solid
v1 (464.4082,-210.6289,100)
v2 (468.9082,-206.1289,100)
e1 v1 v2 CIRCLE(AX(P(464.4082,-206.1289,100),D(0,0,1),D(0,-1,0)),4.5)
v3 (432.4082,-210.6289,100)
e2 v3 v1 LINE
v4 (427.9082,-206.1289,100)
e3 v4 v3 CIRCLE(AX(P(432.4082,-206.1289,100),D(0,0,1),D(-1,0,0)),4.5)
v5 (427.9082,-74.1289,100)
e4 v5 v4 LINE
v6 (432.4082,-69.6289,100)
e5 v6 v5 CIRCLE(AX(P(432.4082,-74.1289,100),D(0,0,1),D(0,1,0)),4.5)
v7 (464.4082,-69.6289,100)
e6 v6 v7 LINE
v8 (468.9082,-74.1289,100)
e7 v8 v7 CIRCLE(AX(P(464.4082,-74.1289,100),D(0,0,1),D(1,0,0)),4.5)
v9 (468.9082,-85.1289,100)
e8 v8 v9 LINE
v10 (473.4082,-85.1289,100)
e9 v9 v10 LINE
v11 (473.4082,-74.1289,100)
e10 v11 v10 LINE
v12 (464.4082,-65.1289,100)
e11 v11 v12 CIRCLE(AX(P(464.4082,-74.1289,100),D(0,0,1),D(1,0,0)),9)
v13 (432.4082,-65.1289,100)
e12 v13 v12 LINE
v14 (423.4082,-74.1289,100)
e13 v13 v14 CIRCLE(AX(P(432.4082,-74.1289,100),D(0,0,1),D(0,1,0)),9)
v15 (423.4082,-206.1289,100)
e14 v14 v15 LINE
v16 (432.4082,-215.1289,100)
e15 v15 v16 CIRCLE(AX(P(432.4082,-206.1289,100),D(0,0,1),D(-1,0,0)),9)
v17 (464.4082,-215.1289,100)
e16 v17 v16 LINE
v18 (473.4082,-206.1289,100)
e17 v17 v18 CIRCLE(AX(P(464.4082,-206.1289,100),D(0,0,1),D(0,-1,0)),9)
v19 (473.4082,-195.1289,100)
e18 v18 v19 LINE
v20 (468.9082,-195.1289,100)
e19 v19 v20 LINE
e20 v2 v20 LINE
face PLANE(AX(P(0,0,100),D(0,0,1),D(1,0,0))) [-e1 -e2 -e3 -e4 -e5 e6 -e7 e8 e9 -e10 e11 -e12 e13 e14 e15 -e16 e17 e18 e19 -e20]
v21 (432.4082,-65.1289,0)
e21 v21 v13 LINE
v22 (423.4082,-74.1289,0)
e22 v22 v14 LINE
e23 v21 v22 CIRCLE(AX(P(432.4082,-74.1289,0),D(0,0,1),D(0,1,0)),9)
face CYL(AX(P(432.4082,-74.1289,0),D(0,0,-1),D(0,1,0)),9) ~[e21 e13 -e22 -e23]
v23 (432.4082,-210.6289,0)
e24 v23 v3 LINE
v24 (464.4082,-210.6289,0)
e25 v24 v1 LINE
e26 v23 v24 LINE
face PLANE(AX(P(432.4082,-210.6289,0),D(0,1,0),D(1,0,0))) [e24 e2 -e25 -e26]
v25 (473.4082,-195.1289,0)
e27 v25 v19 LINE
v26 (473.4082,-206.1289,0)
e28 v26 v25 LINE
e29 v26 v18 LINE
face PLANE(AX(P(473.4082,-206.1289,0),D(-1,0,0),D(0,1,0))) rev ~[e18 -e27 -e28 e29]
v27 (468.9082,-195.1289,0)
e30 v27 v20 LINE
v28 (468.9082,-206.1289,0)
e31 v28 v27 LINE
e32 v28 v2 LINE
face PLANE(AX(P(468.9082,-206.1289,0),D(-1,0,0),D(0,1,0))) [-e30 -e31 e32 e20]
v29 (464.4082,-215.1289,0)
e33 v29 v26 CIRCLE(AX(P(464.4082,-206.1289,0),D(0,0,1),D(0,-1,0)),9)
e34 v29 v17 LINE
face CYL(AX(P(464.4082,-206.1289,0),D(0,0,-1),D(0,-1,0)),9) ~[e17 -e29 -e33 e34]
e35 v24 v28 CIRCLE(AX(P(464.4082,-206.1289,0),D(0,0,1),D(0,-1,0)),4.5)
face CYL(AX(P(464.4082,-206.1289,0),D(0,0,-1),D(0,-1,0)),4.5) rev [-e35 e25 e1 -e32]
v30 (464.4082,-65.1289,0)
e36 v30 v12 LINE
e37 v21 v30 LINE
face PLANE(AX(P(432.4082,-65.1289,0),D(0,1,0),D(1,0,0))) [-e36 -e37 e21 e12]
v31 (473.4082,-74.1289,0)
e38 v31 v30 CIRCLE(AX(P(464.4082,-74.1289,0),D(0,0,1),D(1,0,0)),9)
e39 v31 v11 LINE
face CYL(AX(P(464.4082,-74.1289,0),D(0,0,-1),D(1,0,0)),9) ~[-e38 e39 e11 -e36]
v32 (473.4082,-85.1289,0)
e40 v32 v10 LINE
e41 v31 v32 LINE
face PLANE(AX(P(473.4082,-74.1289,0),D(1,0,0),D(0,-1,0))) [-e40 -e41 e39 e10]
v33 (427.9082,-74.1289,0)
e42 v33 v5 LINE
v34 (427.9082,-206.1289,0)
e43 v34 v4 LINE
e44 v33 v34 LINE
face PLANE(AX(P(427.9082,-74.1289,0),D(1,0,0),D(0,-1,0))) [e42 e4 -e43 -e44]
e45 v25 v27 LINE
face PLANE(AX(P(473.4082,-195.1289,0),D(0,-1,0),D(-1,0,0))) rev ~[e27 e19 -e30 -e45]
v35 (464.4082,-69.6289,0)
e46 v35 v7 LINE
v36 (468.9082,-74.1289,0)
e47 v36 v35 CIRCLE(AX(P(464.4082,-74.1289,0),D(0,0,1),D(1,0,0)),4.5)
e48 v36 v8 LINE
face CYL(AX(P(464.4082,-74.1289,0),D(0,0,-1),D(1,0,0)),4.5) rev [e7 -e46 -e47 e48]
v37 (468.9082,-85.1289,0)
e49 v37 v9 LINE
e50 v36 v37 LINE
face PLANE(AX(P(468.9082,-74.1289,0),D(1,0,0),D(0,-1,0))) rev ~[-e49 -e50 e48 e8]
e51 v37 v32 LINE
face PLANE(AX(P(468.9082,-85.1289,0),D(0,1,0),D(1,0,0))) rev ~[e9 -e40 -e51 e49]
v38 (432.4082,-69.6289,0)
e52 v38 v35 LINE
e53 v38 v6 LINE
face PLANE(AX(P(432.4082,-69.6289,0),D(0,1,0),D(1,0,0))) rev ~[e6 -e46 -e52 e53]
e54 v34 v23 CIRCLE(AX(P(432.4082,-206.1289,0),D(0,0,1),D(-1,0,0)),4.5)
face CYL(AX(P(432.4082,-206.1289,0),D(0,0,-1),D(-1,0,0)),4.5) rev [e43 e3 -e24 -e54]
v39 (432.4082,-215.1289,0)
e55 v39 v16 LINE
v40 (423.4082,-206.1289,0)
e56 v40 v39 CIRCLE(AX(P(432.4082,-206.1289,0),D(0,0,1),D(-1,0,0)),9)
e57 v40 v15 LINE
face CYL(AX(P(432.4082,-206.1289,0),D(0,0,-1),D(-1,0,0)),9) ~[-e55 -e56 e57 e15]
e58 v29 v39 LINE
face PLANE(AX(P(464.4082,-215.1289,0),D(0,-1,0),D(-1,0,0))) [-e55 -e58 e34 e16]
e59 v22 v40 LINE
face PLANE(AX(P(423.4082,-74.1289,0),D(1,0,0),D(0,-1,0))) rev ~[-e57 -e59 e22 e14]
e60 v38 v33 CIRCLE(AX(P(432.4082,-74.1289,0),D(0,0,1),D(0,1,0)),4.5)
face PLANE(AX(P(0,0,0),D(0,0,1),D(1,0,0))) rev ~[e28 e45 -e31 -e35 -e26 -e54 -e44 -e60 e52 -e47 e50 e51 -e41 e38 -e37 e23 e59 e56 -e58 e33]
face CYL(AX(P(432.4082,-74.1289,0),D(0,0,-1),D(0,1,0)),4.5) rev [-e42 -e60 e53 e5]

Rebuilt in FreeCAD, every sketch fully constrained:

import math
import FreeCAD as App
import Part
import Sketcher
from FreeCAD import Vector

doc = App.newDocument("Part")
body = doc.addObject("PartDesign::Body", "Body")

# Sketch on XY plane
sketch1 = body.newObject("Sketcher::SketchObject", "Sketch")
sketch1.AttachmentSupport = (doc.getObject("XY_Plane"), [""])
sketch1.MapMode = "FlatFace"
sketch1.addGeometry(Part.LineSegment(Vector(427.9, -206.1, 0), Vector(427.9, -74.1, 0)), False)
sketch1.addGeometry(Part.ArcOfCircle(Part.Circle(Vector(432.4, -74.1, 0), Vector(0, 0, 1), 4.5), math.radians(90), math.radians(180)), False)
sketch1.addGeometry(Part.LineSegment(Vector(432.4, -69.6, 0), Vector(464.4, -69.6, 0)), False)
sketch1.addGeometry(Part.ArcOfCircle(Part.Circle(Vector(464.4, -74.1, 0), Vector(0, 0, 1), 4.5), math.radians(0), math.radians(90)), False)
sketch1.addGeometry(Part.LineSegment(Vector(468.9, -74.1, 0), Vector(468.9, -85.1, 0)), False)
sketch1.addGeometry(Part.LineSegment(Vector(468.9, -85.1, 0), Vector(473.4, -85.1, 0)), False)
sketch1.addGeometry(Part.LineSegment(Vector(473.4, -85.1, 0), Vector(473.4, -74.1, 0)), False)
sketch1.addGeometry(Part.ArcOfCircle(Part.Circle(Vector(464.4, -74.1, 0), Vector(0, 0, 1), 9), math.radians(0), math.radians(90)), False)
sketch1.addGeometry(Part.LineSegment(Vector(464.4, -65.1, 0), Vector(432.4, -65.1, 0)), False)
sketch1.addGeometry(Part.ArcOfCircle(Part.Circle(Vector(432.4, -74.1, 0), Vector(0, 0, 1), 9), math.radians(90), math.radians(180)), False)
sketch1.addGeometry(Part.LineSegment(Vector(423.4, -74.1, 0), Vector(423.4, -206.1, 0)), False)
sketch1.addGeometry(Part.ArcOfCircle(Part.Circle(Vector(432.4, -206.1, 0), Vector(0, 0, 1), 9), math.radians(180), math.radians(270)), False)
sketch1.addGeometry(Part.LineSegment(Vector(432.4, -215.1, 0), Vector(464.4, -215.1, 0)), False)
sketch1.addGeometry(Part.ArcOfCircle(Part.Circle(Vector(464.4, -206.1, 0), Vector(0, 0, 1), 9), math.radians(-90), math.radians(0)), False)
sketch1.addGeometry(Part.LineSegment(Vector(473.4, -206.1, 0), Vector(473.4, -195.1, 0)), False)
sketch1.addGeometry(Part.LineSegment(Vector(473.4, -195.1, 0), Vector(468.9, -195.1, 0)), False)
sketch1.addGeometry(Part.LineSegment(Vector(468.9, -195.1, 0), Vector(468.9, -206.1, 0)), False)
sketch1.addGeometry(Part.ArcOfCircle(Part.Circle(Vector(464.4, -206.1, 0), Vector(0, 0, 1), 4.5), math.radians(-90), math.radians(0)), False)
sketch1.addGeometry(Part.LineSegment(Vector(464.4, -210.6, 0), Vector(432.4, -210.6, 0)), False)
sketch1.addGeometry(Part.ArcOfCircle(Part.Circle(Vector(432.4, -206.1, 0), Vector(0, 0, 1), 4.5), math.radians(180), math.radians(270)), False)
sketch1.addConstraint(Sketcher.Constraint("Tangent", 0, 2, 1, 2))
sketch1.addConstraint(Sketcher.Constraint("Tangent", 1, 1, 2, 1))
sketch1.addConstraint(Sketcher.Constraint("Tangent", 2, 2, 3, 2))
sketch1.addConstraint(Sketcher.Constraint("Tangent", 3, 1, 4, 1))
sketch1.addConstraint(Sketcher.Constraint("Coincident", 4, 2, 5, 1))
sketch1.addConstraint(Sketcher.Constraint("Coincident", 5, 2, 6, 1))
sketch1.addConstraint(Sketcher.Constraint("Tangent", 6, 2, 7, 1))
sketch1.addConstraint(Sketcher.Constraint("Tangent", 7, 2, 8, 1))
sketch1.addConstraint(Sketcher.Constraint("Tangent", 8, 2, 9, 1))
sketch1.addConstraint(Sketcher.Constraint("Tangent", 9, 2, 10, 1))
sketch1.addConstraint(Sketcher.Constraint("Tangent", 10, 2, 11, 1))
sketch1.addConstraint(Sketcher.Constraint("Tangent", 11, 2, 12, 1))
sketch1.addConstraint(Sketcher.Constraint("Tangent", 12, 2, 13, 1))
sketch1.addConstraint(Sketcher.Constraint("Tangent", 13, 2, 14, 1))
sketch1.addConstraint(Sketcher.Constraint("Coincident", 14, 2, 15, 1))
sketch1.addConstraint(Sketcher.Constraint("Coincident", 15, 2, 16, 1))
sketch1.addConstraint(Sketcher.Constraint("Tangent", 16, 2, 17, 2))
sketch1.addConstraint(Sketcher.Constraint("Tangent", 17, 1, 18, 1))
sketch1.addConstraint(Sketcher.Constraint("Tangent", 18, 2, 19, 2))
sketch1.addConstraint(Sketcher.Constraint("Tangent", 19, 1, 0, 1))
sketch1.addConstraint(Sketcher.Constraint("Vertical", 0))
sketch1.addConstraint(Sketcher.Constraint("Horizontal", 2))
sketch1.addConstraint(Sketcher.Constraint("Vertical", 4))
sketch1.addConstraint(Sketcher.Constraint("Horizontal", 5))
sketch1.addConstraint(Sketcher.Constraint("Vertical", 6))
sketch1.addConstraint(Sketcher.Constraint("Horizontal", 8))
sketch1.addConstraint(Sketcher.Constraint("Vertical", 10))
sketch1.addConstraint(Sketcher.Constraint("Horizontal", 12))
sketch1.addConstraint(Sketcher.Constraint("Vertical", 14))
sketch1.addConstraint(Sketcher.Constraint("Horizontal", 15))
sketch1.addConstraint(Sketcher.Constraint("Vertical", 16))
sketch1.addConstraint(Sketcher.Constraint("Horizontal", 18))
sketch1.addConstraint(Sketcher.Constraint("Coincident", 7, 3, 3, 3))
sketch1.addConstraint(Sketcher.Constraint("Coincident", 9, 3, 1, 3))
sketch1.addConstraint(Sketcher.Constraint("Coincident", 17, 3, 13, 3))
sketch1.addConstraint(Sketcher.Constraint("Coincident", 19, 3, 11, 3))
sketch1.addConstraint(Sketcher.Constraint("Equal", 1, 3))
sketch1.addConstraint(Sketcher.Constraint("Equal", 9, 11))
sketch1.addConstraint(Sketcher.Constraint("Equal", 11, 13))
sketch1.addConstraint(Sketcher.Constraint("Vertical", 7, 3, 13, 3))
sketch1.addConstraint(Sketcher.Constraint("Equal", 6, 14))
sketch1.addConstraint(Sketcher.Constraint("Radius", 7, 9.0))
sketch1.addConstraint(Sketcher.Constraint("Radius", 1, 4.5))
sketch1.addConstraint(Sketcher.Constraint("DistanceX", 2, 1, 2, 2, 32.0))
sketch1.addConstraint(Sketcher.Constraint("DistanceY", 0, 1, 0, 2, 132.0))
sketch1.addConstraint(Sketcher.Constraint("DistanceY", 4, 2, 4, 1, 11.0))
sketch1.addConstraint(Sketcher.Constraint("DistanceY", 1, 3, -1, 1, 74.129))
sketch1.addConstraint(Sketcher.Constraint("DistanceX", -1, 1, 1, 3, 432.4082))
pad1 = body.newObject("PartDesign::Pad", "Pad")
pad1.Profile = sketch1
pad1.Length = 100

doc.recompute()
